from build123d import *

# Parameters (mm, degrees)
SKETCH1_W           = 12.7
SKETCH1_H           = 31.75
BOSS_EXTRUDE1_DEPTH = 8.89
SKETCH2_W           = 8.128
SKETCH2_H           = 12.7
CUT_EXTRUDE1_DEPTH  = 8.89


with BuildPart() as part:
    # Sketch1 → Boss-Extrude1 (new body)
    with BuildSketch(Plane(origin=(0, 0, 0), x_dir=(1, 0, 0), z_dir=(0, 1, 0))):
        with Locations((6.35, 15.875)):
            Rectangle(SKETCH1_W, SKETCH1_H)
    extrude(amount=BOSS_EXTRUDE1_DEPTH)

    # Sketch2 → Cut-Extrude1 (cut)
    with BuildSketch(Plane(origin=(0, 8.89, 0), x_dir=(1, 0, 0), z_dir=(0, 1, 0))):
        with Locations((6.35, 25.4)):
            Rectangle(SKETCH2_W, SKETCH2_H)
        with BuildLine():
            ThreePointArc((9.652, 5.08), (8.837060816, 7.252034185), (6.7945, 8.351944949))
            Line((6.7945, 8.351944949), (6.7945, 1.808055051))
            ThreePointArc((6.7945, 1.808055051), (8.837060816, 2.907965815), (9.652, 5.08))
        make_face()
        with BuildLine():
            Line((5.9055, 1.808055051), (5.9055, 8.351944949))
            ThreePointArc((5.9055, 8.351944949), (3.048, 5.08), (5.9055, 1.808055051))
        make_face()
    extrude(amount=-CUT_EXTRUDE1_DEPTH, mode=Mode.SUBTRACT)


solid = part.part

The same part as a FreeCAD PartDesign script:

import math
import FreeCAD as App
import Part
import Sketcher

V = App.Vector
Q = App.Units.Quantity


def add_polygon(sketch, points):
    """Adds a closed chain of lines whose ends are joined by coincident constraints."""
    first, n = sketch.GeometryCount, len(points)
    for a, b in zip(points, points[1:] + points[:1]):
        sketch.addGeometry(Part.LineSegment(App.Vector(*a, 0), App.Vector(*b, 0)), False)
    for i in range(n):
        sketch.addConstraint(Sketcher.Constraint("Coincident", first + i, 2, first + (i + 1) % n, 1))

doc = App.newDocument("Part")
params = doc.addObject("Spreadsheet::Sheet", "Params")
for row, (alias, value) in enumerate([
    ("sketch1_width", "0.5 in"),
    ("sketch1_height", "1.25 in"),
    ("pad1_length", "0.35 in"),
    ("sketch2_radius", "0.13 in"),
    ("sketch2_height", "0.5 in"),
    ("sketch2_width", "0.32 in"),
    ("pocket1_length", "0.35 in"),
], start=1):
    params.set(f"A{row}", alias)
    params.set(f"B{row}", "=" + value)
    params.setAlias(f"B{row}", alias)

body = doc.addObject("PartDesign::Body", "Body")

# Sketch on XZ plane
sketch1 = body.newObject("Sketcher::SketchObject", "Sketch")
sketch1.AttachmentSupport = (doc.getObject("XZ_Plane"), [""])
sketch1.MapMode = "FlatFace"
add_polygon(sketch1, [(0, -32), (0, 0), (13, 0), (13, -32)])  # lines 0-3
sketch1.addConstraint([
    Sketcher.Constraint("Vertical", 0),
    Sketcher.Constraint("Horizontal", 1),
    Sketcher.Constraint("Vertical", 2),
    Sketcher.Constraint("Horizontal", 3),
    Sketcher.Constraint("Coincident", 0, 2, -1, 1),
    Sketcher.Constraint("DistanceX", 1, 1, 1, 2, Q("0.5 in")),
    Sketcher.Constraint("DistanceY", 0, 1, 0, 2, Q("1.25 in")),
])
sketch1.setExpression("Constraints[9]", "Params.sketch1_width")
sketch1.setExpression("Constraints[10]", "Params.sketch1_height")
pad1 = body.newObject("PartDesign::Pad", "Pad")
pad1.Profile = sketch1
pad1.setExpression("Length", "Params.pad1_length")
pad1.Reversed = True

# Sketch on XZ plane
sketch2 = body.newObject("Sketcher::SketchObject", "Sketch001")
sketch2.AttachmentSupport = (doc.getObject("XZ_Plane"), [""])
sketch2.MapMode = "FlatFace"
sketch2.AttachmentOffset = App.Placement(V(0, 0, -0.35 * 25.4), App.Rotation())
add_polygon(sketch2, [(2.3, -31.8), (2.3, -19.1), (10.4, -19.1), (10.4, -31.8)])  # lines 0-3
sketch2.addGeometry(Part.ArcOfCircle(Part.Circle(V(6.4, -5.1, 0), V(0, 0, 1), 3.3), math.radians(-82), math.radians(0)), False)  # 4
sketch2.addGeometry(Part.LineSegment(V(6.8, -8.4, 0), V(6.8, -1.8, 0)), False)  # 5
sketch2.addGeometry(Part.ArcOfCircle(Part.Circle(V(6.4, -5.1, 0), V(0, 0, 1), 3.3), math.radians(0), math.radians(82)), False)  # 6
sketch2.addGeometry(Part.LineSegment(V(5.9, -1.8, 0), V(5.9, -8.4, 0)), False)  # 7
sketch2.addGeometry(Part.ArcOfCircle(Part.Circle(V(6.3, -5.1, 0), V(0, 0, 1), 3.3), math.radians(98), math.radians(262)), False)  # 8
sketch2.addConstraint([
    Sketcher.Constraint("Coincident", 4, 1, 5, 1),
    Sketcher.Constraint("Coincident", 5, 2, 6, 2),
    Sketcher.Constraint("Tangent", 6, 1, 4, 2),
    Sketcher.Constraint("Coincident", 7, 1, 8, 1),
    Sketcher.Constraint("Coincident", 8, 2, 7, 2),
    Sketcher.Constraint("Vertical", 0),
    Sketcher.Constraint("Horizontal", 1),
    Sketcher.Constraint("Vertical", 2),
    Sketcher.Constraint("Horizontal", 3),
    Sketcher.Constraint("Vertical", 5),
    Sketcher.Constraint("Vertical", 7),
    Sketcher.Constraint("Coincident", 8, 3, 4, 3),
    Sketcher.Constraint("Equal", 4, 6),
    Sketcher.Constraint("Equal", 6, 8),
    Sketcher.Constraint("Horizontal", 8, 3, 6, 1),
    Sketcher.Constraint("Horizontal", 5, 2, 7, 1),
    Sketcher.Constraint("Radius", 4, Q("0.13 in")),
    Sketcher.Constraint("DistanceY", 0, 1, 0, 2, Q("0.5 in")),
    Sketcher.Constraint("DistanceX", 1, 1, 1, 2, Q("0.32 in")),
    Sketcher.Constraint("DistanceY", 4, 3, -1, 1, Q("0.2 in")),
    Sketcher.Constraint("DistanceX", -1, 1, 4, 3, Q("0.25 in")),
    Sketcher.Constraint("DistanceX", -1, 1, 0, 2, Q("0.09 in")),
    Sketcher.Constraint("DistanceY", 0, 2, -1, 1, Q("0.75 in")),
    Sketcher.Constraint("DistanceX", 7, 1, 5, 2, Q("0.035 in")),
])
sketch2.setExpression("Constraints[20]", "Params.sketch2_radius")
sketch2.setExpression("Constraints[21]", "Params.sketch2_height")
sketch2.setExpression("Constraints[22]", "Params.sketch2_width")
pocket1 = body.newObject("PartDesign::Pocket", "Pocket")
pocket1.Profile = sketch2
pocket1.setExpression("Length", "Params.pocket1_length")
pocket1.Reversed = True

doc.recompute()
